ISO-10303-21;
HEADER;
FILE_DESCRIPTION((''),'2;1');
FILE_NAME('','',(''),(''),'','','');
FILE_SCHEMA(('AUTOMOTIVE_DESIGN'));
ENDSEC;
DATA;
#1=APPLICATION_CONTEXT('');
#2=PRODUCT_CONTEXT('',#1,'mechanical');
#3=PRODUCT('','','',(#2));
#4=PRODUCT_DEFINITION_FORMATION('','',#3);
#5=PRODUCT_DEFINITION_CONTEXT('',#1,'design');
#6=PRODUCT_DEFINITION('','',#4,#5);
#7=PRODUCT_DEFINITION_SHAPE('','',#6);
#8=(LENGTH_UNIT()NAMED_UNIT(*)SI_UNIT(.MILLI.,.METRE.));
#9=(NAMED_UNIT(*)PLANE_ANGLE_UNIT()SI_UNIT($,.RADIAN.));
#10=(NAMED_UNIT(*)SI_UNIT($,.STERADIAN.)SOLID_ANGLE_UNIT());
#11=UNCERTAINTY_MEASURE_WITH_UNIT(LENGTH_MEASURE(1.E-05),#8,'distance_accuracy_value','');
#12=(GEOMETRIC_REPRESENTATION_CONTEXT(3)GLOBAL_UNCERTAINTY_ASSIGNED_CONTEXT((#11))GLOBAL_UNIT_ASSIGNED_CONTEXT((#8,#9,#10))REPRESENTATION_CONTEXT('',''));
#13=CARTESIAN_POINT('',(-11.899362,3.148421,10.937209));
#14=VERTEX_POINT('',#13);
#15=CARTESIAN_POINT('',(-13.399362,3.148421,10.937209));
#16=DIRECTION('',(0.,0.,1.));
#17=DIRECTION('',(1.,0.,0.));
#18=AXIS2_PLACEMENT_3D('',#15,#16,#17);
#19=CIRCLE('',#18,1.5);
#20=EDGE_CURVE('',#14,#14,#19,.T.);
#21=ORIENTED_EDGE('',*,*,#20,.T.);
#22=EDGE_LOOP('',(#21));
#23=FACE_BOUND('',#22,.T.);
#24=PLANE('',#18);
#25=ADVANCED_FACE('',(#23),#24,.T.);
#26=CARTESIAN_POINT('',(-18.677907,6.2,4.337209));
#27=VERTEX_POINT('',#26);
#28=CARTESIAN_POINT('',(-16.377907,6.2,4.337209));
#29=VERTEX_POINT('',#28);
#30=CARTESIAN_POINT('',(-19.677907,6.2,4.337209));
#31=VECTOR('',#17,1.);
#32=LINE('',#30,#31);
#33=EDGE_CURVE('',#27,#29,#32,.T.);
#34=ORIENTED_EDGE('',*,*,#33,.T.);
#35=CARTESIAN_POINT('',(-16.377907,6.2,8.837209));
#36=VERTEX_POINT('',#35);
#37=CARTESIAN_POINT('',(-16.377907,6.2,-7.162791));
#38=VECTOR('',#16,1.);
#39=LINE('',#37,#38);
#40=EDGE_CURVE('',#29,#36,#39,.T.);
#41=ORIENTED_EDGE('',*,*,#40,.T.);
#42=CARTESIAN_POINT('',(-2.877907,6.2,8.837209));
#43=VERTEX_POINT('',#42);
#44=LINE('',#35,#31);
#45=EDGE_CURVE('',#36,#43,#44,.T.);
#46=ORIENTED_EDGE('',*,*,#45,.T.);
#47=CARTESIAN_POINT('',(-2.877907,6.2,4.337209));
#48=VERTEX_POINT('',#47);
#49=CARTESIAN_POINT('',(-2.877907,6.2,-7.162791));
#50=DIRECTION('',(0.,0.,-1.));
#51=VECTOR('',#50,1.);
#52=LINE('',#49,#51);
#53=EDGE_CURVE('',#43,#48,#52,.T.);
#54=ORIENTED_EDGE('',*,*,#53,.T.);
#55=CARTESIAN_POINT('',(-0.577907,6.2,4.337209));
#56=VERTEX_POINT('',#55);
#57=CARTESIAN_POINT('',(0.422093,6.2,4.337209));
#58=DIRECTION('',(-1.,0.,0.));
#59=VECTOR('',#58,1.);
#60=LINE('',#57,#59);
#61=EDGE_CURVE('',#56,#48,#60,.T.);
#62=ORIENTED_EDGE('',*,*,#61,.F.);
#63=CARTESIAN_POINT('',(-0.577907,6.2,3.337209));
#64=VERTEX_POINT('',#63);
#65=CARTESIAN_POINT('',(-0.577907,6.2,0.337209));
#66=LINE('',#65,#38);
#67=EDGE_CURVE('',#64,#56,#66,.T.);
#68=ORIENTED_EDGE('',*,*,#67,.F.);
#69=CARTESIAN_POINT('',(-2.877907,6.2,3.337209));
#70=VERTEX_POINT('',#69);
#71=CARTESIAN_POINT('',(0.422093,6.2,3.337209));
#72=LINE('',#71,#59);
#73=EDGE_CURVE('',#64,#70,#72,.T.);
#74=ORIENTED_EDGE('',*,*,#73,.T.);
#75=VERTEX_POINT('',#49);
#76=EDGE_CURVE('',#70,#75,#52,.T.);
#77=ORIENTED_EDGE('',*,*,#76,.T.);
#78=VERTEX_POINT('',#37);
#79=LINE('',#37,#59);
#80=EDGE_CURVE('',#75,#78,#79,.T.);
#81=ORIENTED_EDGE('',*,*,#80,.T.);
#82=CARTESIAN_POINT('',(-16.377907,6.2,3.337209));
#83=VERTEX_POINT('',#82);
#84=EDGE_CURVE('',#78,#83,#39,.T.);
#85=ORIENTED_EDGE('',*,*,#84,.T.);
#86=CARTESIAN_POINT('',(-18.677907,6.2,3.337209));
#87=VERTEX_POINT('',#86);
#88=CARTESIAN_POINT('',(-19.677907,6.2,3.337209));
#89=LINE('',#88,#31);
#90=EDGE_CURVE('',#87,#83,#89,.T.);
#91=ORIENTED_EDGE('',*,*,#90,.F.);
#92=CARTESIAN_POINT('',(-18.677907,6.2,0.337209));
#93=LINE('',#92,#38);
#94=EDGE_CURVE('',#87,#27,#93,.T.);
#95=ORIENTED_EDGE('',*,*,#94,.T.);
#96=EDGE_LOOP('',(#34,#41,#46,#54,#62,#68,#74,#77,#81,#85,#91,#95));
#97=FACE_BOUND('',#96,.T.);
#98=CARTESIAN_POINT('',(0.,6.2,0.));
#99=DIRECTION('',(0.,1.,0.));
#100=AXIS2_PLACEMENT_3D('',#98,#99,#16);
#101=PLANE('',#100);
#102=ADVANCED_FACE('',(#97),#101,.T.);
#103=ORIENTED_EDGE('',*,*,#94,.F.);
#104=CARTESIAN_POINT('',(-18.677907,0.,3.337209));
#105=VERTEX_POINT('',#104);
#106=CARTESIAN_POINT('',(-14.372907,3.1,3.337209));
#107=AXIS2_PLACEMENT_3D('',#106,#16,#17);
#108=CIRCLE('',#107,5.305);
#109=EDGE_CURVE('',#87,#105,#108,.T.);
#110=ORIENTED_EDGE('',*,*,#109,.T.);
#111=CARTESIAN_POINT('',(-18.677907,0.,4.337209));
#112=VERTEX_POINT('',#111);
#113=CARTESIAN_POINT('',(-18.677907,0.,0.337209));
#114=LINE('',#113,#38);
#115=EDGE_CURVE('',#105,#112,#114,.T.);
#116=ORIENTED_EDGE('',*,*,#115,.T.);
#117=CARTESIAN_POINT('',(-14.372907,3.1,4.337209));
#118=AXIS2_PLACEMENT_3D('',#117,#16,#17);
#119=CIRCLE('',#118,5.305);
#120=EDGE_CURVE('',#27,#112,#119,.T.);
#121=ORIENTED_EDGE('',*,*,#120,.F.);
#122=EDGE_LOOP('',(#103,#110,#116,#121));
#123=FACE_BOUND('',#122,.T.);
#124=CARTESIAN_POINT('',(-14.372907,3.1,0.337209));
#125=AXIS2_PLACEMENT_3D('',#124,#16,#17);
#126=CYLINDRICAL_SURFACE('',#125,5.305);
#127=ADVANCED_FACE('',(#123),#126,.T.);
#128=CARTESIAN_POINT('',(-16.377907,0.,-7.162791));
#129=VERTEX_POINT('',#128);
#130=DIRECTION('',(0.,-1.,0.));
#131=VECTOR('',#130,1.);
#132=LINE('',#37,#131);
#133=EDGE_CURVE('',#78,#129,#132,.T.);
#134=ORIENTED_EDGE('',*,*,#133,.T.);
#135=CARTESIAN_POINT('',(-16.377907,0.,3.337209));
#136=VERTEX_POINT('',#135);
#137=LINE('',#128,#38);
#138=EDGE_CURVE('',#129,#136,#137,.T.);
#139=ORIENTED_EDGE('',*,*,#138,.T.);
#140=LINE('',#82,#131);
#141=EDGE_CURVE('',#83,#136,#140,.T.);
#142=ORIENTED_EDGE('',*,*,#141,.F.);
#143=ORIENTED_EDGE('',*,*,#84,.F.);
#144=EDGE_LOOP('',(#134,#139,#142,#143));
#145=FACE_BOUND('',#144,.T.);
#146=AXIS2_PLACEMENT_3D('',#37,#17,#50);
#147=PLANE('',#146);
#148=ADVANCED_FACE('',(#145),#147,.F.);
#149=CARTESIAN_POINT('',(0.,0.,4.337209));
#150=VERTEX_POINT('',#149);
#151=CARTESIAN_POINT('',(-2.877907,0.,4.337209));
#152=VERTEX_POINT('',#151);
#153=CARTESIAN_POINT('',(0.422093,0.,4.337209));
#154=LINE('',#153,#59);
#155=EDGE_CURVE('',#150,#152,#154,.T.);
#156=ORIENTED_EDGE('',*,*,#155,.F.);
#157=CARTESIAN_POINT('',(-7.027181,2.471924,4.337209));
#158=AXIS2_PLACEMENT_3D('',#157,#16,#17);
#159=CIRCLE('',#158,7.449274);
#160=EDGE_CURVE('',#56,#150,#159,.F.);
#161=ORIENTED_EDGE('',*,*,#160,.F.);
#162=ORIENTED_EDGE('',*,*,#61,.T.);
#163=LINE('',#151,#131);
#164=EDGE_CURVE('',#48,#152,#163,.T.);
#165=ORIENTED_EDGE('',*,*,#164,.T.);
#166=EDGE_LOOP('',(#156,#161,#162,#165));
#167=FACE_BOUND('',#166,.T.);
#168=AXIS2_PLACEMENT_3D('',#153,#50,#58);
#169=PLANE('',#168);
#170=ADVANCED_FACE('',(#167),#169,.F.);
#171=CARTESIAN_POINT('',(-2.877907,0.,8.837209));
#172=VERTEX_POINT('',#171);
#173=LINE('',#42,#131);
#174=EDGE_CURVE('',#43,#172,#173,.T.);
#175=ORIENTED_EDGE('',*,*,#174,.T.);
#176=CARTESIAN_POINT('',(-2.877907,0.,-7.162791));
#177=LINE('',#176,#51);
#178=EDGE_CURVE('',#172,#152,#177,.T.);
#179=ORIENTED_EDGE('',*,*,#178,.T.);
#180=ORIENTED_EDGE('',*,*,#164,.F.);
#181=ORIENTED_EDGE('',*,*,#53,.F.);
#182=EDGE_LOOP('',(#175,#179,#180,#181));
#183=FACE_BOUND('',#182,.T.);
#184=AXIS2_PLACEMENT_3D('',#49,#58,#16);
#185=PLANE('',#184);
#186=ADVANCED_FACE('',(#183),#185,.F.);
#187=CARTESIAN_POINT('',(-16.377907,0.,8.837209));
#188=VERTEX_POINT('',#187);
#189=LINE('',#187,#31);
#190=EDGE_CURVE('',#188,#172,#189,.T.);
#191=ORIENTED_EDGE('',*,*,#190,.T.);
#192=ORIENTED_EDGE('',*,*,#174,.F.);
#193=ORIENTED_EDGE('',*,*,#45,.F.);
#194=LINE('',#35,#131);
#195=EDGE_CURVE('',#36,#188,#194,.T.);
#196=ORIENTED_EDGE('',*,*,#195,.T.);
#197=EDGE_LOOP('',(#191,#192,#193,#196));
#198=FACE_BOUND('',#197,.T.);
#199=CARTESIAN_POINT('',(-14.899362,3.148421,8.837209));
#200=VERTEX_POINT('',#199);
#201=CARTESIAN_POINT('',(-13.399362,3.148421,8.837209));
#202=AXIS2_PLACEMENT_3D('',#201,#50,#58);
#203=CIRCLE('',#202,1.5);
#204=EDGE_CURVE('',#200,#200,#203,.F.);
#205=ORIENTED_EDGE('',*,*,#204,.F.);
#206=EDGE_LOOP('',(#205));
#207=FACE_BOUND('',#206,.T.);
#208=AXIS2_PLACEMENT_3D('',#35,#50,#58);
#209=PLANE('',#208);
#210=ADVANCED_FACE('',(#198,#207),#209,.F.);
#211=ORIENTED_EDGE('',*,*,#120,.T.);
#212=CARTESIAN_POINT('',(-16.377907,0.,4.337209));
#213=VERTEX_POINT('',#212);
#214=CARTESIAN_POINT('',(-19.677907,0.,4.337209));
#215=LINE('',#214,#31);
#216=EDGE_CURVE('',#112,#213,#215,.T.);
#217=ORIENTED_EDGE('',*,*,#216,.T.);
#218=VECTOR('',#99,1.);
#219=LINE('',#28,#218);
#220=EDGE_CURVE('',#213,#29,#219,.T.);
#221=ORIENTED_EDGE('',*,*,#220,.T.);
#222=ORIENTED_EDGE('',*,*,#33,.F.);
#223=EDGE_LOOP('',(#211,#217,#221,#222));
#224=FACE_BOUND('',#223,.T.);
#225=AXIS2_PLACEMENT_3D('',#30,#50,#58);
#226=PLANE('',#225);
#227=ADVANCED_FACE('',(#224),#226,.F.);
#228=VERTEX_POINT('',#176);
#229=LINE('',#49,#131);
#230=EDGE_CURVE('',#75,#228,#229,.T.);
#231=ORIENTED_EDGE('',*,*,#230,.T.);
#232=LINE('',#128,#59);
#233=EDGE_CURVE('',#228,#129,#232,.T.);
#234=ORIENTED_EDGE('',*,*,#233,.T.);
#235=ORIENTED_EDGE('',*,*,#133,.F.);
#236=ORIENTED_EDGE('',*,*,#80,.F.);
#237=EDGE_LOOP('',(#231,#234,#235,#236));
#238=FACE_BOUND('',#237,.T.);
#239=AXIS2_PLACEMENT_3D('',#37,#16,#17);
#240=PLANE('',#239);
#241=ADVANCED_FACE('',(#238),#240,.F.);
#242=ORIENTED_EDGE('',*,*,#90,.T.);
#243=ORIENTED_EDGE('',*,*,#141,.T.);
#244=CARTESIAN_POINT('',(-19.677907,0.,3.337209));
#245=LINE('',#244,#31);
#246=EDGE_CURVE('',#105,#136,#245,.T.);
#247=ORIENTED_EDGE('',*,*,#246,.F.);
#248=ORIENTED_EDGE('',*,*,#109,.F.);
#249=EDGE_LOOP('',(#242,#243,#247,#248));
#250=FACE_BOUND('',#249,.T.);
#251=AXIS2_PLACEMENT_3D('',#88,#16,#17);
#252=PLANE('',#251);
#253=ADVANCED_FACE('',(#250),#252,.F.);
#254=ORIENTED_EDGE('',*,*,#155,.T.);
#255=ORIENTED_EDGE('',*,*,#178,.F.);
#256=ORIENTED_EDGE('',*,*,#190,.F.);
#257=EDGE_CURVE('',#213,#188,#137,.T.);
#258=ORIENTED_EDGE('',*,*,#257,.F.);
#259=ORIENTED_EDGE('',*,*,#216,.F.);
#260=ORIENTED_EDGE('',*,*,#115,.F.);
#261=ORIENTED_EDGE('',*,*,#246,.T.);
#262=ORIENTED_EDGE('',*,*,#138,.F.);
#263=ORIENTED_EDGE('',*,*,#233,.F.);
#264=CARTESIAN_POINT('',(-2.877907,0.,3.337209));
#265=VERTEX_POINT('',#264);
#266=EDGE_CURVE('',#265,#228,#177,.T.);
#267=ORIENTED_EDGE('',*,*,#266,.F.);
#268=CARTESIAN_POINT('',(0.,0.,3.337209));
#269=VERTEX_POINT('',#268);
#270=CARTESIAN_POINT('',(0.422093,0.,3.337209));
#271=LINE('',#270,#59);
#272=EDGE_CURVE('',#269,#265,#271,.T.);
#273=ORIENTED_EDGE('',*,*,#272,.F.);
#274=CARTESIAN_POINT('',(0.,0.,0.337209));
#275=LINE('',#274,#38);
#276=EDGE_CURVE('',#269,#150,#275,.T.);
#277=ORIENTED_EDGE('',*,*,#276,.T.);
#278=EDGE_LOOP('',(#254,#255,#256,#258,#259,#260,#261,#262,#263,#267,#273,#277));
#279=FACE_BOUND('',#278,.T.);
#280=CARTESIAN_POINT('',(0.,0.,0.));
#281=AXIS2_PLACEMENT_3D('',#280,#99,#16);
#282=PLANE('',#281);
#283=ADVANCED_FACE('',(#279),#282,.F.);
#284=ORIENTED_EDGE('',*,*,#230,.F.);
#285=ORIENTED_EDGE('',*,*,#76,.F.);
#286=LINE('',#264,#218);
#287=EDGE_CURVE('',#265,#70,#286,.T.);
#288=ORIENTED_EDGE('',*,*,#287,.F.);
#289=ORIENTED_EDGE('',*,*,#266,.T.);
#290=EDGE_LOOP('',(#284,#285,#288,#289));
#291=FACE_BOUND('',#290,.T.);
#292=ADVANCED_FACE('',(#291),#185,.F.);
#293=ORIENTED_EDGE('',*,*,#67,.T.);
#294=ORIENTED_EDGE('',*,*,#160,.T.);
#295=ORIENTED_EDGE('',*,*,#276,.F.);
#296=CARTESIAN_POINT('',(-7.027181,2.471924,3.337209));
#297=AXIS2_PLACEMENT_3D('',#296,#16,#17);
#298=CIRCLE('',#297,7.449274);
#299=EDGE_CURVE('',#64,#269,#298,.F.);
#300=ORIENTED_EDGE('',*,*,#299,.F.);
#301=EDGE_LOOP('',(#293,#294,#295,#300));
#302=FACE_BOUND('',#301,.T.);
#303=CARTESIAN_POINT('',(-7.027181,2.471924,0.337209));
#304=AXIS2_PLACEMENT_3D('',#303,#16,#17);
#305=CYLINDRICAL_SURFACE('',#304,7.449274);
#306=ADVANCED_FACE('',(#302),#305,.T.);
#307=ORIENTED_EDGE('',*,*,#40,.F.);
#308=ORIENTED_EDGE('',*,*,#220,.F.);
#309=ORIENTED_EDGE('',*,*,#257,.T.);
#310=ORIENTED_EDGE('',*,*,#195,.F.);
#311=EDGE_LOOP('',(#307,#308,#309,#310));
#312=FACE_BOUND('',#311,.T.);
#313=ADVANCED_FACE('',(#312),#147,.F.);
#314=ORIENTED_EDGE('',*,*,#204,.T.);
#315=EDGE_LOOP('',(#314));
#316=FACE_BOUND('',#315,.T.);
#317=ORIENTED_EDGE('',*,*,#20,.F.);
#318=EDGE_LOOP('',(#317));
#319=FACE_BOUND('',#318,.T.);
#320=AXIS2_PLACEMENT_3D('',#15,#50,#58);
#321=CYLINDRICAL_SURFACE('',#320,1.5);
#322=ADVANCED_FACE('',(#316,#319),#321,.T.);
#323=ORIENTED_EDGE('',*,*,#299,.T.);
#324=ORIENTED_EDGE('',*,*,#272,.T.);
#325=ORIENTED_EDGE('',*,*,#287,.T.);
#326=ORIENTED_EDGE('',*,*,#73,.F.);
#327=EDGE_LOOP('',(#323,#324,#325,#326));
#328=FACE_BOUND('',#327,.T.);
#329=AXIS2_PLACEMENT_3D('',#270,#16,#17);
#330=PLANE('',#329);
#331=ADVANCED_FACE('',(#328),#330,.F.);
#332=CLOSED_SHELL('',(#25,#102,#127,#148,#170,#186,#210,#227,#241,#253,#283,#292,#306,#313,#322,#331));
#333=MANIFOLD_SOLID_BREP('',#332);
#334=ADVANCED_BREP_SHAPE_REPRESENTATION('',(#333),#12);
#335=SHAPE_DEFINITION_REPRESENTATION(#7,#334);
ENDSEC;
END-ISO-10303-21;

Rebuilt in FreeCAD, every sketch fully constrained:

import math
import FreeCAD as App
import Part
import Sketcher

V = App.Vector
Q = App.Units.Quantity

doc = App.newDocument("Part")
body = doc.addObject("PartDesign::Body", "Body")

# Sketch on XZ plane
sketch1 = body.newObject("Sketcher::SketchObject", "Sketch")
sketch1.AttachmentSupport = (doc.getObject("XZ_Plane"), [""])
sketch1.MapMode = "FlatFace"
sketch1.addGeometry([
    Part.LineSegment(V(-16.377907, -7.162791, 0), V(-16.377907, 8.837209, 0)),
    Part.LineSegment(V(-16.377907, 8.837209, 0), V(-2.877907, 8.837209, 0)),
    Part.LineSegment(V(-2.877907, 8.837209, 0), V(-2.877907, -7.162791, 0)),
    Part.LineSegment(V(-2.877907, -7.162791, 0), V(-16.377907, -7.162791, 0)),
], False)
sketch1.addConstraint([
    Sketcher.Constraint("Coincident", 0, 2, 1, 1),
    Sketcher.Constraint("Coincident", 1, 2, 2, 1),
    Sketcher.Constraint("Coincident", 2, 2, 3, 1),
    Sketcher.Constraint("Coincident", 3, 2, 0, 1),
    Sketcher.Constraint("Vertical", 0),
    Sketcher.Constraint("Horizontal", 1),
    Sketcher.Constraint("Vertical", 2),
    Sketcher.Constraint("Horizontal", 3),
    Sketcher.Constraint("DistanceY", 0, 1, 0, 2, Q("16 mm")),
    Sketcher.Constraint("DistanceX", 1, 1, 1, 2, Q("13.5 mm")),
    Sketcher.Constraint("DistanceY", -1, 1, 0, 2, Q("8.837209 mm")),
    Sketcher.Constraint("DistanceX", 0, 2, -1, 1, Q("16.377907 mm")),
])
pad1 = body.newObject("PartDesign::Pad", "Pad")
pad1.Profile = sketch1
pad1.Length = 6.2
pad1.Reversed = True

# Sketch on XY plane
sketch2 = body.newObject("Sketcher::SketchObject", "Sketch001")
sketch2.AttachmentSupport = (doc.getObject("XY_Plane"), [""])
sketch2.MapMode = "FlatFace"
sketch2.AttachmentOffset = App.Placement(V(0, 0, 8.837209), App.Rotation())
sketch2.addGeometry(Part.Circle(V(-13.399362, 3.148421, 0), V(0, 0, 1), 1.5), False)
sketch2.addConstraint([
    Sketcher.Constraint("Diameter", 0, Q("3 mm")),
    Sketcher.Constraint("DistanceX", 0, 3, -1, 1, Q("13.399362 mm")),
    Sketcher.Constraint("DistanceY", -1, 1, 0, 3, Q("3.148421 mm")),
])
pad2 = body.newObject("PartDesign::Pad", "Pad001")
pad2.Profile = sketch2
pad2.Length = 2.1

# Sketch on YZ plane
sketch3 = body.newObject("Sketcher::SketchObject", "Sketch002")
sketch3.AttachmentSupport = (doc.getObject("YZ_Plane"), [""])
sketch3.MapMode = "FlatFace"
sketch3.AttachmentOffset = App.Placement(V(0, 0, -16.377907), App.Rotation())
sketch3.addGeometry([
    Part.LineSegment(V(6.2, 3.337209, 0), V(0, 3.337209, 0)),
    Part.LineSegment(V(0, 3.337209, 0), V(0, 4.337209, 0)),
    Part.LineSegment(V(0, 4.337209, 0), V(6.2, 4.337209, 0)),
    Part.LineSegment(V(6.2, 4.337209, 0), V(6.2, 3.337209, 0)),
], False)
sketch3.addConstraint([
    Sketcher.Constraint("Coincident", 0, 2, 1, 1),
    Sketcher.Constraint("Coincident", 1, 2, 2, 1),
    Sketcher.Constraint("Coincident", 2, 2, 3, 1),
    Sketcher.Constraint("Coincident", 3, 2, 0, 1),
    Sketcher.Constraint("Horizontal", 0),
    Sketcher.Constraint("Vertical", 1),
    Sketcher.Constraint("Horizontal", 2),
    Sketcher.Constraint("Vertical", 3),
    Sketcher.Constraint("PointOnObject", 0, 2, -2),
    Sketcher.Constraint("DistanceY", 1, 1, 1, 2, Q("1 mm")),
    Sketcher.Constraint("DistanceX", 0, 2, 0, 1, Q("6.2 mm")),
    Sketcher.Constraint("DistanceY", -1, 1, 0, 2, Q("3.337209 mm")),
])
pad3 = body.newObject("PartDesign::Pad", "Pad002")
pad3.Profile = sketch3
pad3.Length = 3.3
pad3.Reversed = True

# Sketch on XY plane
sketch4 = body.newObject("Sketcher::SketchObject", "Sketch003")
sketch4.AttachmentSupport = (doc.getObject("XY_Plane"), [""])
sketch4.MapMode = "FlatFace"
sketch4.AttachmentOffset = App.Placement(V(0, 0, 4.337209), App.Rotation())
sketch4.addGeometry([
    Part.ArcOfCircle(Part.Circle(V(-14.372907, 3.1, 0), V(0, 0, 1), 5.305), math.radians(144.242607), math.radians(180)),  # 0
    Part.LineSegment(V(-18.677907, 6.2, 0), V(-19.677907, 6.2, 0)),  # 1
    Part.LineSegment(V(-19.677907, 6.2, 0), V(-19.677907, 3.1, 0)),  # 2
    Part.ArcOfCircle(Part.Circle(V(-14.372907, 3.1, 0), V(0, 0, 1), 5.305), math.radians(-180), math.radians(-144.242607)),  # 3
    Part.LineSegment(V(-19.677907, 3.1, 0), V(-19.677907, 0, 0)),  # 4
    Part.LineSegment(V(-19.677907, 0, 0), V(-18.677907, 0, 0)),  # 5
], False)
sketch4.addConstraint([
    Sketcher.Constraint("Coincident", 0, 1, 1, 1),
    Sketcher.Constraint("Coincident", 1, 2, 2, 1),
    Sketcher.Constraint("Tangent", 2, 2, 0, 2),
    Sketcher.Constraint("Tangent", 3, 1, 4, 1),
    Sketcher.Constraint("Coincident", 4, 2, 5, 1),
    Sketcher.Constraint("Coincident", 5, 2, 3, 2),
    Sketcher.Constraint("Horizontal", 1),
    Sketcher.Constraint("Vertical", 2),
    Sketcher.Constraint("Vertical", 4),
    Sketcher.Constraint("Horizontal", 5),
    Sketcher.Constraint("Coincident", 3, 3, 0, 3),
    Sketcher.Constraint("Equal", 0, 3),
    Sketcher.Constraint("PointOnObject", 4, 2, -1),
    Sketcher.Constraint("Vertical", 0, 1, 5, 2),
    Sketcher.Constraint("DistanceX", 1, 2, 1, 1, Q("1 mm")),
    Sketcher.Constraint("DistanceY", 2, 2, 2, 1, Q("3.1 mm")),
    Sketcher.Constraint("DistanceX", 0, 3, -1, 1, Q("14.372907 mm")),
])
pocket1 = body.newObject("PartDesign::Pocket", "Pocket")
pocket1.Profile = sketch4
pocket1.Length = 4

# Sketch on YZ plane
sketch5 = body.newObject("Sketcher::SketchObject", "Sketch004")
sketch5.AttachmentSupport = (doc.getObject("YZ_Plane"), [""])
sketch5.MapMode = "FlatFace"
sketch5.AttachmentOffset = App.Placement(V(0, 0, -2.877907), App.Rotation())
sketch5.addGeometry([
    Part.LineSegment(V(6.2, 4.337209, 0), V(0, 4.337209, 0)),
    Part.LineSegment(V(0, 4.337209, 0), V(0, 3.337209, 0)),
    Part.LineSegment(V(0, 3.337209, 0), V(6.2, 3.337209, 0)),
    Part.LineSegment(V(6.2, 3.337209, 0), V(6.2, 4.337209, 0)),
], False)
sketch5.addConstraint([
    Sketcher.Constraint("Coincident", 0, 2, 1, 1),
    Sketcher.Constraint("Coincident", 1, 2, 2, 1),
    Sketcher.Constraint("Coincident", 2, 2, 3, 1),
    Sketcher.Constraint("Coincident", 3, 2, 0, 1),
    Sketcher.Constraint("Horizontal", 0),
    Sketcher.Constraint("Vertical", 1),
    Sketcher.Constraint("Horizontal", 2),
    Sketcher.Constraint("Vertical", 3),
    Sketcher.Constraint("PointOnObject", 0, 2, -2),
    Sketcher.Constraint("DistanceY", 1, 2, 1, 1, Q("1 mm")),
    Sketcher.Constraint("DistanceX", 0, 2, 0, 1, Q("6.2 mm")),
    Sketcher.Constraint("DistanceY", -1, 1, 0, 2, Q("4.337209 mm")),
])
pad4 = body.newObject("PartDesign::Pad", "Pad003")
pad4.Profile = sketch5
pad4.Length = 3.3

# Sketch on XY plane
sketch6 = body.newObject("Sketcher::SketchObject", "Sketch005")
sketch6.AttachmentSupport = (doc.getObject("XY_Plane"), [""])
sketch6.MapMode = "FlatFace"
sketch6.AttachmentOffset = App.Placement(V(0, 0, 4.337209), App.Rotation())
sketch6.addGeometry([
    Part.LineSegment(V(0.422093, 0, 0), V(0.422093, 2.471924, 0)),  # 0
    Part.ArcOfCircle(Part.Circle(V(-7.027181, 2.471924, 0), V(0, 0, 1), 7.449274), math.radians(-19.380147), math.radians(0)),  # 1
    Part.LineSegment(V(0, 0, 0), V(0.422093, 0, 0)),  # 2
    Part.LineSegment(V(0.422093, 6.2, 0), V(-0.577907, 6.2, 0)),  # 3
    Part.ArcOfCircle(Part.Circle(V(-7.027181, 2.471924, 0), V(0, 0, 1), 7.449274), math.radians(0), math.radians(30.030545)),  # 4
    Part.LineSegment(V(0.422093, 2.471924, 0), V(0.422093, 6.2, 0)),  # 5
], False)
sketch6.addConstraint([
    Sketcher.Constraint("Tangent", 0, 2, 1, 2),
    Sketcher.Constraint("Coincident", 1, 1, 2, 1),
    Sketcher.Constraint("Coincident", 2, 2, 0, 1),
    Sketcher.Constraint("Coincident", 3, 2, 4, 2),
    Sketcher.Constraint("Tangent", 4, 1, 5, 1),
    Sketcher.Constraint("Coincident", 5, 2, 3, 1),
    Sketcher.Constraint("Vertical", 0),
    Sketcher.Constraint("Horizontal", 2),
    Sketcher.Constraint("Horizontal", 3),
    Sketcher.Constraint("Vertical", 5),
    Sketcher.Constraint("Coincident", 1, 1, -1, 1),
    Sketcher.Constraint("Coincident", 4, 3, 1, 3),
    Sketcher.Constraint("Equal", 1, 4),
    Sketcher.Constraint("DistanceX", 3, 2, 3, 1, Q("1 mm")),
    Sketcher.Constraint("DistanceY", -1, 1, 3, 2, Q("6.2 mm")),
    Sketcher.Constraint("Radius", 1, Q("7.449274 mm")),
])
pocket2 = body.newObject("PartDesign::Pocket", "Pocket001")
pocket2.Profile = sketch6
pocket2.Length = 4

doc.recompute()
